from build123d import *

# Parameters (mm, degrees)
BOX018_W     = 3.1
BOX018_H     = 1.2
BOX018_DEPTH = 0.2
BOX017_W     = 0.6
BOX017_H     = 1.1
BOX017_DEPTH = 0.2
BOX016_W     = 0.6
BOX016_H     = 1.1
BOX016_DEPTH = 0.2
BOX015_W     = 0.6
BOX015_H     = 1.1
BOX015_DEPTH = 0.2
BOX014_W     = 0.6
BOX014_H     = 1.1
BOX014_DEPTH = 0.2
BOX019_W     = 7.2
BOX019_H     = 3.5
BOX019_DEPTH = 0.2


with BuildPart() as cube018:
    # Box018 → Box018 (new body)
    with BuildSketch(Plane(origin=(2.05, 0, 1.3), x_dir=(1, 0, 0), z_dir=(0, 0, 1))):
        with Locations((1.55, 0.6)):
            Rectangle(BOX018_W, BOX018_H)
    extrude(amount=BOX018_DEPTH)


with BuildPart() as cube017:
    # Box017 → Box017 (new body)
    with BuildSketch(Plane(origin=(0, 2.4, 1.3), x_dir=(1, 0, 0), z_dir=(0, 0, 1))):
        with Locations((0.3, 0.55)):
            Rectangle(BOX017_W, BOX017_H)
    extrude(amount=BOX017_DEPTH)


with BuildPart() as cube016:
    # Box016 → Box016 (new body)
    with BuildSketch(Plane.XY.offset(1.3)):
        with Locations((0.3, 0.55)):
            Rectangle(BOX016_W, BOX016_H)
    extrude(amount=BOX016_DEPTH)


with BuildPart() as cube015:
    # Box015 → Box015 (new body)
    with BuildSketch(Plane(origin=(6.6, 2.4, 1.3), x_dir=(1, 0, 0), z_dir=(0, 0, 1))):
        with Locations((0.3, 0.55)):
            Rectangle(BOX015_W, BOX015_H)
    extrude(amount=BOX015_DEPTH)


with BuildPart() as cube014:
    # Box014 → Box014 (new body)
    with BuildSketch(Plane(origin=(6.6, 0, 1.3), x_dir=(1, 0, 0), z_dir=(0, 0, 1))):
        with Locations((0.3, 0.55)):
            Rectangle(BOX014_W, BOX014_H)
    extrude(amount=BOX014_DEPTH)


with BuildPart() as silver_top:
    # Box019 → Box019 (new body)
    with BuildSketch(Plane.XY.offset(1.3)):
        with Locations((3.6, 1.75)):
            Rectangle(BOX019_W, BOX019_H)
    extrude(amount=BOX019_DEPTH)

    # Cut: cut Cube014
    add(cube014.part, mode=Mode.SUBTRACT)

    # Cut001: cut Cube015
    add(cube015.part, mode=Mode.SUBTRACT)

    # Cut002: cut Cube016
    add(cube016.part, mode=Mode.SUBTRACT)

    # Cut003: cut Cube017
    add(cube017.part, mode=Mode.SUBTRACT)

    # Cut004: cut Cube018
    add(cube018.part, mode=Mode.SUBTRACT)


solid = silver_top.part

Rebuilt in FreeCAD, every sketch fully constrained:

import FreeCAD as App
import Part
import Sketcher


def add_polygon(sketch, points):
    """Adds a closed chain of lines whose ends are joined by coincident constraints."""
    first, n = sketch.GeometryCount, len(points)
    for a, b in zip(points, points[1:] + points[:1]):
        sketch.addGeometry(Part.LineSegment(App.Vector(*a, 0), App.Vector(*b, 0)), False)
    for i in range(n):
        sketch.addConstraint(Sketcher.Constraint("Coincident", first + i, 2, first + (i + 1) % n, 1))

doc = App.newDocument("Part")
body = doc.addObject("PartDesign::Body", "Body")

# Sketch on XY plane
sketch1 = body.newObject("Sketcher::SketchObject", "Sketch")
sketch1.AttachmentSupport = (doc.getObject("XY_Plane"), [""])
sketch1.MapMode = "FlatFace"
sketch1.AttachmentOffset = App.Placement(App.Vector(0, 0, 1.3), App.Rotation())
add_polygon(sketch1, [(2.05, 1.2), (2.05, 0), (5.15, 0), (5.15, 1.2)])  # lines 0-3
sketch1.addConstraint([
    Sketcher.Constraint("Vertical", 0),
    Sketcher.Constraint("Horizontal", 1),
    Sketcher.Constraint("Vertical", 2),
    Sketcher.Constraint("Horizontal", 3),
    Sketcher.Constraint("PointOnObject", 0, 2, -1),
    Sketcher.Constraint("DistanceX", 1, 1, 1, 2, 3.1),
    Sketcher.Constraint("DistanceY", 0, 2, 0, 1, 1.2),
    Sketcher.Constraint("DistanceX", -1, 1, 0, 2, 2.05),
])
pad1 = body.newObject("PartDesign::Pad", "Pad")
pad1.Profile = sketch1
pad1.Length = 0.2
body2 = doc.addObject("PartDesign::Body", "Body001")

# Sketch on XY plane
sketch2 = body2.newObject("Sketcher::SketchObject", "Sketch001")
sketch2.AttachmentSupport = (doc.getObject("XY_Plane001"), [""])
sketch2.MapMode = "FlatFace"
sketch2.AttachmentOffset = App.Placement(App.Vector(0, 0, 1.3), App.Rotation())
add_polygon(sketch2, [(0, 3.5), (0, 2.4), (0.6, 2.4), (0.6, 3.5)])  # lines 0-3
sketch2.addConstraint([
    Sketcher.Constraint("Vertical", 0),
    Sketcher.Constraint("Horizontal", 1),
    Sketcher.Constraint("Vertical", 2),
    Sketcher.Constraint("Horizontal", 3),
    Sketcher.Constraint("PointOnObject", 0, 2, -2),
    Sketcher.Constraint("DistanceX", 1, 1, 1, 2, 0.6),
    Sketcher.Constraint("DistanceY", 0, 2, 0, 1, 1.1),
    Sketcher.Constraint("DistanceY", -1, 1, 0, 2, 2.4),
])
pad2 = body2.newObject("PartDesign::Pad", "Pad001")
pad2.Profile = sketch2
pad2.Length = 0.2
body3 = doc.addObject("PartDesign::Body", "Body002")

# Sketch on XY plane
sketch3 = body3.newObject("Sketcher::SketchObject", "Sketch002")
sketch3.AttachmentSupport = (doc.getObject("XY_Plane002"), [""])
sketch3.MapMode = "FlatFace"
sketch3.AttachmentOffset = App.Placement(App.Vector(0, 0, 1.3), App.Rotation())
add_polygon(sketch3, [(0, 1.1), (0, 0), (0.6, 0), (0.6, 1.1)])  # lines 0-3
sketch3.addConstraint([
    Sketcher.Constraint("Vertical", 0),
    Sketcher.Constraint("Horizontal", 1),
    Sketcher.Constraint("Vertical", 2),
    Sketcher.Constraint("Horizontal", 3),
    Sketcher.Constraint("Coincident", 0, 2, -1, 1),
    Sketcher.Constraint("DistanceX", 1, 1, 1, 2, 0.6),
    Sketcher.Constraint("DistanceY", 0, 2, 0, 1, 1.1),
])
pad3 = body3.newObject("PartDesign::Pad", "Pad002")
pad3.Profile = sketch3
pad3.Length = 0.2
body4 = doc.addObject("PartDesign::Body", "Body003")

# Sketch on XY plane
sketch4 = body4.newObject("Sketcher::SketchObject", "Sketch003")
sketch4.AttachmentSupport = (doc.getObject("XY_Plane003"), [""])
sketch4.MapMode = "FlatFace"
sketch4.AttachmentOffset = App.Placement(App.Vector(0, 0, 1.3), App.Rotation())
add_polygon(sketch4, [(6.6, 3.5), (6.6, 2.4), (7.2, 2.4), (7.2, 3.5)])  # lines 0-3
sketch4.addConstraint([
    Sketcher.Constraint("Vertical", 0),
    Sketcher.Constraint("Horizontal", 1),
    Sketcher.Constraint("Vertical", 2),
    Sketcher.Constraint("Horizontal", 3),
    Sketcher.Constraint("DistanceX", 1, 1, 1, 2, 0.6),
    Sketcher.Constraint("DistanceY", 0, 2, 0, 1, 1.1),
    Sketcher.Constraint("DistanceX", -1, 1, 0, 2, 6.6),
    Sketcher.Constraint("DistanceY", -1, 1, 0, 2, 2.4),
])
pad4 = body4.newObject("PartDesign::Pad", "Pad003")
pad4.Profile = sketch4
pad4.Length = 0.2
body5 = doc.addObject("PartDesign::Body", "Body004")

# Sketch on XY plane
sketch5 = body5.newObject("Sketcher::SketchObject", "Sketch004")
sketch5.AttachmentSupport = (doc.getObject("XY_Plane004"), [""])
sketch5.MapMode = "FlatFace"
sketch5.AttachmentOffset = App.Placement(App.Vector(0, 0, 1.3), App.Rotation())
add_polygon(sketch5, [(6.6, 1.1), (6.6, 0), (7.2, 0), (7.2, 1.1)])  # lines 0-3
sketch5.addConstraint([
    Sketcher.Constraint("Vertical", 0),
    Sketcher.Constraint("Horizontal", 1),
    Sketcher.Constraint("Vertical", 2),
    Sketcher.Constraint("Horizontal", 3),
    Sketcher.Constraint("PointOnObject", 0, 2, -1),
    Sketcher.Constraint("DistanceX", 1, 1, 1, 2, 0.6),
    Sketcher.Constraint("DistanceY", 0, 2, 0, 1, 1.1),
    Sketcher.Constraint("DistanceX", -1, 1, 0, 2, 6.6),
])
pad5 = body5.newObject("PartDesign::Pad", "Pad004")
pad5.Profile = sketch5
pad5.Length = 0.2
body6 = doc.addObject("PartDesign::Body", "Body005")

# Sketch on XY plane
sketch6 = body6.newObject("Sketcher::SketchObject", "Sketch005")
sketch6.AttachmentSupport = (doc.getObject("XY_Plane005"), [""])
sketch6.MapMode = "FlatFace"
sketch6.AttachmentOffset = App.Placement(App.Vector(0, 0, 1.3), App.Rotation())
add_polygon(sketch6, [(0, 3.5), (0, 0), (7.2, 0), (7.2, 3.5)])  # lines 0-3
sketch6.addConstraint([
    Sketcher.Constraint("Vertical", 0),
    Sketcher.Constraint("Horizontal", 1),
    Sketcher.Constraint("Vertical", 2),
    Sketcher.Constraint("Horizontal", 3),
    Sketcher.Constraint("Coincident", 0, 2, -1, 1),
    Sketcher.Constraint("DistanceX", 1, 1, 1, 2, 7.2),
    Sketcher.Constraint("DistanceY", 0, 2, 0, 1, 3.5),
])
pad6 = body6.newObject("PartDesign::Pad", "Pad005")
pad6.Profile = sketch6
pad6.Length = 0.2
doc.recompute()

boolean = body6.newObject("PartDesign::Boolean", "Boolean")
boolean.Type = "Cut"
boolean.addObjects([body5])
doc.recompute()

boolean2 = body6.newObject("PartDesign::Boolean", "Boolean001")
boolean2.Type = "Cut"
boolean2.addObjects([body4])
doc.recompute()

boolean3 = body6.newObject("PartDesign::Boolean", "Boolean002")
boolean3.Type = "Cut"
boolean3.addObjects([body3])
doc.recompute()

boolean4 = body6.newObject("PartDesign::Boolean", "Boolean003")
boolean4.Type = "Cut"
boolean4.addObjects([body2])
doc.recompute()

boolean5 = body6.newObject("PartDesign::Boolean", "Boolean004")
boolean5.Type = "Cut"
boolean5.addObjects([body])

doc.recompute()
